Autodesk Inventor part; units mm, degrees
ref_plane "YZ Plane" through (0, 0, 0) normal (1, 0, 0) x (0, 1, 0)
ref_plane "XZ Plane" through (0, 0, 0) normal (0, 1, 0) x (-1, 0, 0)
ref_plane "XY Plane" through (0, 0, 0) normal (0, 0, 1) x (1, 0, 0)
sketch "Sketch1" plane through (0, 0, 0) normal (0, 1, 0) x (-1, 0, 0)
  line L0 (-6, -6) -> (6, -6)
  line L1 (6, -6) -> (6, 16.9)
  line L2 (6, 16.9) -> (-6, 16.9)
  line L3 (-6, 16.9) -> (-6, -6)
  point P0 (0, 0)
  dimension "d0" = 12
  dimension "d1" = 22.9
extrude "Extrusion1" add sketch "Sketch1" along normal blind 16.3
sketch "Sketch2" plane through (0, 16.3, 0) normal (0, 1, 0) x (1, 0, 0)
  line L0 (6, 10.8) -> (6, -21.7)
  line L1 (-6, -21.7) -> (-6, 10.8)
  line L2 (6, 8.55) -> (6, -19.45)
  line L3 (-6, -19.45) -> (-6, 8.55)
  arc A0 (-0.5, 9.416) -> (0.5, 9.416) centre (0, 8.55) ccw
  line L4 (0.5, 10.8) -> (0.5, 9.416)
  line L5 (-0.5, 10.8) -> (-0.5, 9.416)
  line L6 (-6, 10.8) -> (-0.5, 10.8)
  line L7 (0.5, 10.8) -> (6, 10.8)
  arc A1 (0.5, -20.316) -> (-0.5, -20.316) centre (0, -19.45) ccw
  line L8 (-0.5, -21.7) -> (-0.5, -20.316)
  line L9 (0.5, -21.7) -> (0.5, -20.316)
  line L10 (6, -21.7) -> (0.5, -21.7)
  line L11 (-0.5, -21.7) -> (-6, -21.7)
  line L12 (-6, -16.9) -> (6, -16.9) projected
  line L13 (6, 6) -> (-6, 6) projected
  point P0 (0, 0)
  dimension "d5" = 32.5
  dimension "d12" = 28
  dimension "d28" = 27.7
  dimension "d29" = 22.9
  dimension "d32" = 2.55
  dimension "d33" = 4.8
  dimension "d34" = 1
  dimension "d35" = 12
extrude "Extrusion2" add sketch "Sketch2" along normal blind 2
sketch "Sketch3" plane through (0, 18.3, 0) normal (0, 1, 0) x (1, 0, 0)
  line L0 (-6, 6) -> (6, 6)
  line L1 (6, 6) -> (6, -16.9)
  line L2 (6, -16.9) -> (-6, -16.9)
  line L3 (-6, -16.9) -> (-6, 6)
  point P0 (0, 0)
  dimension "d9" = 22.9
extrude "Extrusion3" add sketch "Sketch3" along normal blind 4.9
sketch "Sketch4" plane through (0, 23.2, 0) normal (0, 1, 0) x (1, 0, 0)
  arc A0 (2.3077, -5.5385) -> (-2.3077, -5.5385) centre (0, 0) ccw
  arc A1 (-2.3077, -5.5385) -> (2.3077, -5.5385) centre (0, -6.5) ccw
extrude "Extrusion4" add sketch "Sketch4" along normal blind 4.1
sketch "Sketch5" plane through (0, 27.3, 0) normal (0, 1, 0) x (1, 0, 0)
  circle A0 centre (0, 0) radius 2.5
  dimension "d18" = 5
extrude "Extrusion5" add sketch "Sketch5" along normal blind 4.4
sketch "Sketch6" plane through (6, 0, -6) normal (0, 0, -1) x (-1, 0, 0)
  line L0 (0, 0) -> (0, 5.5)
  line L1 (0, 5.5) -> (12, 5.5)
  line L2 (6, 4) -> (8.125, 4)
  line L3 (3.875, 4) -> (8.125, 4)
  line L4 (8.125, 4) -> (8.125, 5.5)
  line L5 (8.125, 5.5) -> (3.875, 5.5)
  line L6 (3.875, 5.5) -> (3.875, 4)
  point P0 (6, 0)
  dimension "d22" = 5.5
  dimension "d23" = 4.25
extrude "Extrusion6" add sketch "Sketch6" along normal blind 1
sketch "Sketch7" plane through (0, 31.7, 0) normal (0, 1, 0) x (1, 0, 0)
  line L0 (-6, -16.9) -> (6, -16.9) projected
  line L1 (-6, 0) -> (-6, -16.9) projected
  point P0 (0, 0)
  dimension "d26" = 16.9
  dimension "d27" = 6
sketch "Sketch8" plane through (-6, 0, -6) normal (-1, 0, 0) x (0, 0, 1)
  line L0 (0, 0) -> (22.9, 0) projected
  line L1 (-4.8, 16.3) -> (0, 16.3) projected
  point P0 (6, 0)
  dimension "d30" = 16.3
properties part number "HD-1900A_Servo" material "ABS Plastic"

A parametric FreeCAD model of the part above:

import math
import FreeCAD as App
import Part
import Sketcher
Q = App.Units.Quantity


def add_polygon(sketch, points):
    """Adds a closed chain of lines whose ends are joined by coincident constraints."""
    first, n = sketch.GeometryCount, len(points)
    for a, b in zip(points, points[1:] + points[:1]):
        sketch.addGeometry(Part.LineSegment(App.Vector(*a, 0), App.Vector(*b, 0)), False)
    for i in range(n):
        sketch.addConstraint(Sketcher.Constraint("Coincident", first + i, 2, first + (i + 1) % n, 1))

doc = App.newDocument("Part")
params = doc.addObject("Spreadsheet::Sheet", "Params")
for row, (alias, value) in enumerate([
    ("sketch1_width", "12 mm"),
    ("sketch1_height", "22.9 mm"),
    ("pad1_length", "16.3 mm"),
    ("sketch2_radius", "1 mm"),
    ("sketch2_height", "32.5 mm"),
    ("sketch2_width", "5.5 mm"),
    ("pad2_length", "2 mm"),
    ("sketch3_height", "22.9 mm"),
    ("sketch3_width", "12 mm"),
    ("pad3_length", "4.9 mm"),
    ("sketch4_radius", "6 mm"),
    ("sketch4_radius2", "2.5 mm"),
    ("pad4_length", "4.1 mm"),
    ("sketch5_diameter", "5 mm"),
    ("pad5_length", "4.4 mm"),
    ("sketch6_width", "4.25 mm"),
    ("sketch6_height", "1.5 mm"),
    ("pad6_length", "1 mm"),
], start=1):
    params.set(f"A{row}", alias)
    params.set(f"B{row}", "=" + value)
    params.setAlias(f"B{row}", alias)

body = doc.addObject("PartDesign::Body", "Body")

# Sketch on XZ plane
sketch1 = body.newObject("Sketcher::SketchObject", "Sketch")
sketch1.AttachmentSupport = (doc.getObject("XZ_Plane"), [""])
sketch1.MapMode = "FlatFace"
add_polygon(sketch1, [(6, 16.9), (6, -6), (-6, -6), (-6, 16.9)])  # lines 0-3
sketch1.addConstraint([
    Sketcher.Constraint("Vertical", 0),
    Sketcher.Constraint("Horizontal", 1),
    Sketcher.Constraint("Vertical", 2),
    Sketcher.Constraint("Horizontal", 3),
    Sketcher.Constraint("DistanceX", 1, 2, 1, 1, Q("12 mm")),
    Sketcher.Constraint("DistanceY", 0, 2, 0, 1, Q("22.9 mm")),
    Sketcher.Constraint("DistanceX", -1, 1, 0, 2, Q("6 mm")),
    Sketcher.Constraint("DistanceY", 0, 2, -1, 1, Q("6 mm")),
])
sketch1.setExpression("Constraints[8]", "Params.sketch1_width")
sketch1.setExpression("Constraints[9]", "Params.sketch1_height")
pad1 = body.newObject("PartDesign::Pad", "Pad")
pad1.Profile = sketch1
pad1.setExpression("Length", "Params.pad1_length")
pad1.Reversed = True

# Sketch on XZ plane
sketch2 = body.newObject("Sketcher::SketchObject", "Sketch001")
sketch2.AttachmentSupport = (doc.getObject("XZ_Plane"), [""])
sketch2.MapMode = "FlatFace"
sketch2.AttachmentOffset = App.Placement(App.Vector(0, 0, -16.3), App.Rotation())
sketch2.addGeometry([
    Part.LineSegment(App.Vector(6, -10.8, 0), App.Vector(0.5, -10.8, 0)),  # 0
    Part.LineSegment(App.Vector(0.5, -10.8, 0), App.Vector(0.5, -9.416, 0)),  # 1
    Part.ArcOfCircle(Part.Circle(App.Vector(0, -8.55, 0), App.Vector(0, 0, 1), 0.999978), math.radians(-59.999272), math.radians(239.999272)),  # 2
    Part.LineSegment(App.Vector(-0.5, -9.416, 0), App.Vector(-0.5, -10.8, 0)),  # 3
    Part.LineSegment(App.Vector(-0.5, -10.8, 0), App.Vector(-6, -10.8, 0)),  # 4
    Part.LineSegment(App.Vector(-6, -10.8, 0), App.Vector(-6, 21.7, 0)),  # 5
    Part.LineSegment(App.Vector(-6, 21.7, 0), App.Vector(-0.5, 21.7, 0)),  # 6
    Part.LineSegment(App.Vector(-0.5, 21.7, 0), App.Vector(-0.5, 20.316, 0)),  # 7
    Part.ArcOfCircle(Part.Circle(App.Vector(0, 19.45, 0), App.Vector(0, 0, 1), 0.999978), math.radians(120.000728), math.radians(419.999272)),  # 8
    Part.LineSegment(App.Vector(0.5, 20.316, 0), App.Vector(0.5, 21.7, 0)),  # 9
    Part.LineSegment(App.Vector(0.5, 21.7, 0), App.Vector(6, 21.7, 0)),  # 10
    Part.LineSegment(App.Vector(6, 21.7, 0), App.Vector(6, -10.8, 0)),  # 11
], False)
sketch2.addConstraint([
    Sketcher.Constraint("Coincident", 0, 2, 1, 1),
    Sketcher.Constraint("Coincident", 1, 2, 2, 1),
    Sketcher.Constraint("Coincident", 2, 2, 3, 1),
    Sketcher.Constraint("Coincident", 3, 2, 4, 1),
    Sketcher.Constraint("Coincident", 4, 2, 5, 1),
    Sketcher.Constraint("Coincident", 5, 2, 6, 1),
    Sketcher.Constraint("Coincident", 6, 2, 7, 1),
    Sketcher.Constraint("Coincident", 7, 2, 8, 1),
    Sketcher.Constraint("Coincident", 8, 2, 9, 1),
    Sketcher.Constraint("Coincident", 9, 2, 10, 1),
    Sketcher.Constraint("Coincident", 10, 2, 11, 1),
    Sketcher.Constraint("Coincident", 11, 2, 0, 1),
    Sketcher.Constraint("Horizontal", 0),
    Sketcher.Constraint("Vertical", 1),
    Sketcher.Constraint("Vertical", 3),
    Sketcher.Constraint("Horizontal", 4),
    Sketcher.Constraint("Vertical", 5),
    Sketcher.Constraint("Horizontal", 6),
    Sketcher.Constraint("Vertical", 7),
    Sketcher.Constraint("Vertical", 9),
    Sketcher.Constraint("Horizontal", 10),
    Sketcher.Constraint("Vertical", 11),
    Sketcher.Constraint("Equal", 2, 8),
    Sketcher.Constraint("Symmetric", 1, 2, 2, 2, -2),
    Sketcher.Constraint("Symmetric", 7, 2, 8, 2, -2),
    Sketcher.Constraint("Symmetric", 5, 2, 10, 2, -2),
    Sketcher.Constraint("Horizontal", 0, 2, 3, 2),
    Sketcher.Constraint("Vertical", 3, 2, 6, 2),
    Sketcher.Constraint("Equal", 3, 7),
    Sketcher.Constraint("Radius", 2, Q("1 mm")),
    Sketcher.Constraint("DistanceY", 5, 1, 5, 2, Q("32.5 mm")),
    Sketcher.Constraint("DistanceY", 2, 3, 8, 3, Q("28 mm")),
    Sketcher.Constraint("DistanceX", 2, 2, 1, 2, Q("1 mm")),
    Sketcher.Constraint("DistanceX", 0, 2, 0, 1, Q("5.5 mm")),
    Sketcher.Constraint("DistanceY", 0, 2, -1, 1, Q("10.8 mm")),
])
sketch2.setExpression("Constraints[29]", "Params.sketch2_radius")
sketch2.setExpression("Constraints[30]", "Params.sketch2_height")
sketch2.setExpression("Constraints[33]", "Params.sketch2_width")
pad2 = body.newObject("PartDesign::Pad", "Pad001")
pad2.Profile = sketch2
pad2.setExpression("Length", "Params.pad2_length")
pad2.Reversed = True

# Sketch on XZ plane
sketch3 = body.newObject("Sketcher::SketchObject", "Sketch002")
sketch3.AttachmentSupport = (doc.getObject("XZ_Plane"), [""])
sketch3.MapMode = "FlatFace"
sketch3.AttachmentOffset = App.Placement(App.Vector(0, 0, -18.3), App.Rotation())
add_polygon(sketch3, [(6, -6), (-6, -6), (-6, 16.9), (6, 16.9)])  # lines 0-3
sketch3.addConstraint([
    Sketcher.Constraint("Horizontal", 0),
    Sketcher.Constraint("Vertical", 1),
    Sketcher.Constraint("Horizontal", 2),
    Sketcher.Constraint("Vertical", 3),
    Sketcher.Constraint("DistanceY", 1, 1, 1, 2, Q("22.9 mm")),
    Sketcher.Constraint("DistanceX", 0, 2, 0, 1, Q("12 mm")),
    Sketcher.Constraint("DistanceX", 0, 2, -1, 1, Q("6 mm")),
    Sketcher.Constraint("DistanceY", 0, 2, -1, 1, Q("6 mm")),
])
sketch3.setExpression("Constraints[8]", "Params.sketch3_height")
sketch3.setExpression("Constraints[9]", "Params.sketch3_width")
pad3 = body.newObject("PartDesign::Pad", "Pad002")
pad3.Profile = sketch3
pad3.setExpression("Length", "Params.pad3_length")
pad3.Reversed = True

# Sketch on XZ plane
sketch4 = body.newObject("Sketcher::SketchObject", "Sketch003")
sketch4.AttachmentSupport = (doc.getObject("XZ_Plane"), [""])
sketch4.MapMode = "FlatFace"
sketch4.AttachmentOffset = App.Placement(App.Vector(0, 0, -23.2), App.Rotation())
sketch4.addGeometry([
    Part.ArcOfCircle(Part.Circle(App.Vector(0, 6.5, 0), App.Vector(0, 0, 1), 2.499992), math.radians(-22.618983), math.radians(202.618983)),
    Part.ArcOfCircle(Part.Circle(App.Vector(0, 0, 0), App.Vector(0, 0, 1), 6.000038), math.radians(112.619791), math.radians(427.380209)),
], False)
sketch4.addConstraint([
    Sketcher.Constraint("Coincident", 0, 1, 1, 2),
    Sketcher.Constraint("Coincident", 1, 1, 0, 2),
    Sketcher.Constraint("Coincident", 1, 3, -1, 1),
    Sketcher.Constraint("PointOnObject", 0, 3, -2),
    Sketcher.Constraint("Radius", 1, Q("6 mm")),
    Sketcher.Constraint("Radius", 0, Q("2.5 mm")),
    Sketcher.Constraint("DistanceY", -1, 1, 0, 3, Q("6.5 mm")),
])
sketch4.setExpression("Constraints[4]", "Params.sketch4_radius")
sketch4.setExpression("Constraints[5]", "Params.sketch4_radius2")
pad4 = body.newObject("PartDesign::Pad", "Pad003")
pad4.Profile = sketch4
pad4.setExpression("Length", "Params.pad4_length")
pad4.Reversed = True

# Sketch on XZ plane
sketch5 = body.newObject("Sketcher::SketchObject", "Sketch004")
sketch5.AttachmentSupport = (doc.getObject("XZ_Plane"), [""])
sketch5.MapMode = "FlatFace"
sketch5.AttachmentOffset = App.Placement(App.Vector(0, 0, -27.3), App.Rotation())
sketch5.addGeometry(Part.Circle(App.Vector(0, 0, 0), App.Vector(0, 0, 1), 2.5), False)
sketch5.addConstraint([
    Sketcher.Constraint("Coincident", 0, 3, -1, 1),
    Sketcher.Constraint("Diameter", 0, Q("5 mm")),
])
sketch5.setExpression("Constraints[1]", "Params.sketch5_diameter")
pad5 = body.newObject("PartDesign::Pad", "Pad004")
pad5.Profile = sketch5
pad5.setExpression("Length", "Params.pad5_length")
pad5.Reversed = True

# Sketch on XY plane
sketch6 = body.newObject("Sketcher::SketchObject", "Sketch005")
sketch6.AttachmentSupport = (doc.getObject("XY_Plane"), [""])
sketch6.MapMode = "FlatFace"
sketch6.AttachmentOffset = App.Placement(App.Vector(0, 0, -6), App.Rotation())
add_polygon(sketch6, [(-2.125, 5.5), (2.125, 5.5), (2.125, 4), (-2.125, 4)])  # lines 0-3
sketch6.addConstraint([
    Sketcher.Constraint("Horizontal", 0),
    Sketcher.Constraint("Vertical", 1),
    Sketcher.Constraint("Horizontal", 2),
    Sketcher.Constraint("Vertical", 3),
    Sketcher.Constraint("DistanceX", 0, 1, 0, 2, Q("4.25 mm")),
    Sketcher.Constraint("DistanceY", -1, 1, 0, 2, Q("5.5 mm")),
    Sketcher.Constraint("DistanceY", 1, 2, 1, 1, Q("1.5 mm")),
    Sketcher.Constraint("DistanceX", -1, 1, 0, 2, Q("2.125 mm")),
])
sketch6.setExpression("Constraints[8]", "Params.sketch6_width")
sketch6.setExpression("Constraints[10]", "Params.sketch6_height")
pad6 = body.newObject("PartDesign::Pad", "Pad005")
pad6.Profile = sketch6
pad6.setExpression("Length", "Params.pad6_length")
pad6.Reversed = True

doc.recompute()
